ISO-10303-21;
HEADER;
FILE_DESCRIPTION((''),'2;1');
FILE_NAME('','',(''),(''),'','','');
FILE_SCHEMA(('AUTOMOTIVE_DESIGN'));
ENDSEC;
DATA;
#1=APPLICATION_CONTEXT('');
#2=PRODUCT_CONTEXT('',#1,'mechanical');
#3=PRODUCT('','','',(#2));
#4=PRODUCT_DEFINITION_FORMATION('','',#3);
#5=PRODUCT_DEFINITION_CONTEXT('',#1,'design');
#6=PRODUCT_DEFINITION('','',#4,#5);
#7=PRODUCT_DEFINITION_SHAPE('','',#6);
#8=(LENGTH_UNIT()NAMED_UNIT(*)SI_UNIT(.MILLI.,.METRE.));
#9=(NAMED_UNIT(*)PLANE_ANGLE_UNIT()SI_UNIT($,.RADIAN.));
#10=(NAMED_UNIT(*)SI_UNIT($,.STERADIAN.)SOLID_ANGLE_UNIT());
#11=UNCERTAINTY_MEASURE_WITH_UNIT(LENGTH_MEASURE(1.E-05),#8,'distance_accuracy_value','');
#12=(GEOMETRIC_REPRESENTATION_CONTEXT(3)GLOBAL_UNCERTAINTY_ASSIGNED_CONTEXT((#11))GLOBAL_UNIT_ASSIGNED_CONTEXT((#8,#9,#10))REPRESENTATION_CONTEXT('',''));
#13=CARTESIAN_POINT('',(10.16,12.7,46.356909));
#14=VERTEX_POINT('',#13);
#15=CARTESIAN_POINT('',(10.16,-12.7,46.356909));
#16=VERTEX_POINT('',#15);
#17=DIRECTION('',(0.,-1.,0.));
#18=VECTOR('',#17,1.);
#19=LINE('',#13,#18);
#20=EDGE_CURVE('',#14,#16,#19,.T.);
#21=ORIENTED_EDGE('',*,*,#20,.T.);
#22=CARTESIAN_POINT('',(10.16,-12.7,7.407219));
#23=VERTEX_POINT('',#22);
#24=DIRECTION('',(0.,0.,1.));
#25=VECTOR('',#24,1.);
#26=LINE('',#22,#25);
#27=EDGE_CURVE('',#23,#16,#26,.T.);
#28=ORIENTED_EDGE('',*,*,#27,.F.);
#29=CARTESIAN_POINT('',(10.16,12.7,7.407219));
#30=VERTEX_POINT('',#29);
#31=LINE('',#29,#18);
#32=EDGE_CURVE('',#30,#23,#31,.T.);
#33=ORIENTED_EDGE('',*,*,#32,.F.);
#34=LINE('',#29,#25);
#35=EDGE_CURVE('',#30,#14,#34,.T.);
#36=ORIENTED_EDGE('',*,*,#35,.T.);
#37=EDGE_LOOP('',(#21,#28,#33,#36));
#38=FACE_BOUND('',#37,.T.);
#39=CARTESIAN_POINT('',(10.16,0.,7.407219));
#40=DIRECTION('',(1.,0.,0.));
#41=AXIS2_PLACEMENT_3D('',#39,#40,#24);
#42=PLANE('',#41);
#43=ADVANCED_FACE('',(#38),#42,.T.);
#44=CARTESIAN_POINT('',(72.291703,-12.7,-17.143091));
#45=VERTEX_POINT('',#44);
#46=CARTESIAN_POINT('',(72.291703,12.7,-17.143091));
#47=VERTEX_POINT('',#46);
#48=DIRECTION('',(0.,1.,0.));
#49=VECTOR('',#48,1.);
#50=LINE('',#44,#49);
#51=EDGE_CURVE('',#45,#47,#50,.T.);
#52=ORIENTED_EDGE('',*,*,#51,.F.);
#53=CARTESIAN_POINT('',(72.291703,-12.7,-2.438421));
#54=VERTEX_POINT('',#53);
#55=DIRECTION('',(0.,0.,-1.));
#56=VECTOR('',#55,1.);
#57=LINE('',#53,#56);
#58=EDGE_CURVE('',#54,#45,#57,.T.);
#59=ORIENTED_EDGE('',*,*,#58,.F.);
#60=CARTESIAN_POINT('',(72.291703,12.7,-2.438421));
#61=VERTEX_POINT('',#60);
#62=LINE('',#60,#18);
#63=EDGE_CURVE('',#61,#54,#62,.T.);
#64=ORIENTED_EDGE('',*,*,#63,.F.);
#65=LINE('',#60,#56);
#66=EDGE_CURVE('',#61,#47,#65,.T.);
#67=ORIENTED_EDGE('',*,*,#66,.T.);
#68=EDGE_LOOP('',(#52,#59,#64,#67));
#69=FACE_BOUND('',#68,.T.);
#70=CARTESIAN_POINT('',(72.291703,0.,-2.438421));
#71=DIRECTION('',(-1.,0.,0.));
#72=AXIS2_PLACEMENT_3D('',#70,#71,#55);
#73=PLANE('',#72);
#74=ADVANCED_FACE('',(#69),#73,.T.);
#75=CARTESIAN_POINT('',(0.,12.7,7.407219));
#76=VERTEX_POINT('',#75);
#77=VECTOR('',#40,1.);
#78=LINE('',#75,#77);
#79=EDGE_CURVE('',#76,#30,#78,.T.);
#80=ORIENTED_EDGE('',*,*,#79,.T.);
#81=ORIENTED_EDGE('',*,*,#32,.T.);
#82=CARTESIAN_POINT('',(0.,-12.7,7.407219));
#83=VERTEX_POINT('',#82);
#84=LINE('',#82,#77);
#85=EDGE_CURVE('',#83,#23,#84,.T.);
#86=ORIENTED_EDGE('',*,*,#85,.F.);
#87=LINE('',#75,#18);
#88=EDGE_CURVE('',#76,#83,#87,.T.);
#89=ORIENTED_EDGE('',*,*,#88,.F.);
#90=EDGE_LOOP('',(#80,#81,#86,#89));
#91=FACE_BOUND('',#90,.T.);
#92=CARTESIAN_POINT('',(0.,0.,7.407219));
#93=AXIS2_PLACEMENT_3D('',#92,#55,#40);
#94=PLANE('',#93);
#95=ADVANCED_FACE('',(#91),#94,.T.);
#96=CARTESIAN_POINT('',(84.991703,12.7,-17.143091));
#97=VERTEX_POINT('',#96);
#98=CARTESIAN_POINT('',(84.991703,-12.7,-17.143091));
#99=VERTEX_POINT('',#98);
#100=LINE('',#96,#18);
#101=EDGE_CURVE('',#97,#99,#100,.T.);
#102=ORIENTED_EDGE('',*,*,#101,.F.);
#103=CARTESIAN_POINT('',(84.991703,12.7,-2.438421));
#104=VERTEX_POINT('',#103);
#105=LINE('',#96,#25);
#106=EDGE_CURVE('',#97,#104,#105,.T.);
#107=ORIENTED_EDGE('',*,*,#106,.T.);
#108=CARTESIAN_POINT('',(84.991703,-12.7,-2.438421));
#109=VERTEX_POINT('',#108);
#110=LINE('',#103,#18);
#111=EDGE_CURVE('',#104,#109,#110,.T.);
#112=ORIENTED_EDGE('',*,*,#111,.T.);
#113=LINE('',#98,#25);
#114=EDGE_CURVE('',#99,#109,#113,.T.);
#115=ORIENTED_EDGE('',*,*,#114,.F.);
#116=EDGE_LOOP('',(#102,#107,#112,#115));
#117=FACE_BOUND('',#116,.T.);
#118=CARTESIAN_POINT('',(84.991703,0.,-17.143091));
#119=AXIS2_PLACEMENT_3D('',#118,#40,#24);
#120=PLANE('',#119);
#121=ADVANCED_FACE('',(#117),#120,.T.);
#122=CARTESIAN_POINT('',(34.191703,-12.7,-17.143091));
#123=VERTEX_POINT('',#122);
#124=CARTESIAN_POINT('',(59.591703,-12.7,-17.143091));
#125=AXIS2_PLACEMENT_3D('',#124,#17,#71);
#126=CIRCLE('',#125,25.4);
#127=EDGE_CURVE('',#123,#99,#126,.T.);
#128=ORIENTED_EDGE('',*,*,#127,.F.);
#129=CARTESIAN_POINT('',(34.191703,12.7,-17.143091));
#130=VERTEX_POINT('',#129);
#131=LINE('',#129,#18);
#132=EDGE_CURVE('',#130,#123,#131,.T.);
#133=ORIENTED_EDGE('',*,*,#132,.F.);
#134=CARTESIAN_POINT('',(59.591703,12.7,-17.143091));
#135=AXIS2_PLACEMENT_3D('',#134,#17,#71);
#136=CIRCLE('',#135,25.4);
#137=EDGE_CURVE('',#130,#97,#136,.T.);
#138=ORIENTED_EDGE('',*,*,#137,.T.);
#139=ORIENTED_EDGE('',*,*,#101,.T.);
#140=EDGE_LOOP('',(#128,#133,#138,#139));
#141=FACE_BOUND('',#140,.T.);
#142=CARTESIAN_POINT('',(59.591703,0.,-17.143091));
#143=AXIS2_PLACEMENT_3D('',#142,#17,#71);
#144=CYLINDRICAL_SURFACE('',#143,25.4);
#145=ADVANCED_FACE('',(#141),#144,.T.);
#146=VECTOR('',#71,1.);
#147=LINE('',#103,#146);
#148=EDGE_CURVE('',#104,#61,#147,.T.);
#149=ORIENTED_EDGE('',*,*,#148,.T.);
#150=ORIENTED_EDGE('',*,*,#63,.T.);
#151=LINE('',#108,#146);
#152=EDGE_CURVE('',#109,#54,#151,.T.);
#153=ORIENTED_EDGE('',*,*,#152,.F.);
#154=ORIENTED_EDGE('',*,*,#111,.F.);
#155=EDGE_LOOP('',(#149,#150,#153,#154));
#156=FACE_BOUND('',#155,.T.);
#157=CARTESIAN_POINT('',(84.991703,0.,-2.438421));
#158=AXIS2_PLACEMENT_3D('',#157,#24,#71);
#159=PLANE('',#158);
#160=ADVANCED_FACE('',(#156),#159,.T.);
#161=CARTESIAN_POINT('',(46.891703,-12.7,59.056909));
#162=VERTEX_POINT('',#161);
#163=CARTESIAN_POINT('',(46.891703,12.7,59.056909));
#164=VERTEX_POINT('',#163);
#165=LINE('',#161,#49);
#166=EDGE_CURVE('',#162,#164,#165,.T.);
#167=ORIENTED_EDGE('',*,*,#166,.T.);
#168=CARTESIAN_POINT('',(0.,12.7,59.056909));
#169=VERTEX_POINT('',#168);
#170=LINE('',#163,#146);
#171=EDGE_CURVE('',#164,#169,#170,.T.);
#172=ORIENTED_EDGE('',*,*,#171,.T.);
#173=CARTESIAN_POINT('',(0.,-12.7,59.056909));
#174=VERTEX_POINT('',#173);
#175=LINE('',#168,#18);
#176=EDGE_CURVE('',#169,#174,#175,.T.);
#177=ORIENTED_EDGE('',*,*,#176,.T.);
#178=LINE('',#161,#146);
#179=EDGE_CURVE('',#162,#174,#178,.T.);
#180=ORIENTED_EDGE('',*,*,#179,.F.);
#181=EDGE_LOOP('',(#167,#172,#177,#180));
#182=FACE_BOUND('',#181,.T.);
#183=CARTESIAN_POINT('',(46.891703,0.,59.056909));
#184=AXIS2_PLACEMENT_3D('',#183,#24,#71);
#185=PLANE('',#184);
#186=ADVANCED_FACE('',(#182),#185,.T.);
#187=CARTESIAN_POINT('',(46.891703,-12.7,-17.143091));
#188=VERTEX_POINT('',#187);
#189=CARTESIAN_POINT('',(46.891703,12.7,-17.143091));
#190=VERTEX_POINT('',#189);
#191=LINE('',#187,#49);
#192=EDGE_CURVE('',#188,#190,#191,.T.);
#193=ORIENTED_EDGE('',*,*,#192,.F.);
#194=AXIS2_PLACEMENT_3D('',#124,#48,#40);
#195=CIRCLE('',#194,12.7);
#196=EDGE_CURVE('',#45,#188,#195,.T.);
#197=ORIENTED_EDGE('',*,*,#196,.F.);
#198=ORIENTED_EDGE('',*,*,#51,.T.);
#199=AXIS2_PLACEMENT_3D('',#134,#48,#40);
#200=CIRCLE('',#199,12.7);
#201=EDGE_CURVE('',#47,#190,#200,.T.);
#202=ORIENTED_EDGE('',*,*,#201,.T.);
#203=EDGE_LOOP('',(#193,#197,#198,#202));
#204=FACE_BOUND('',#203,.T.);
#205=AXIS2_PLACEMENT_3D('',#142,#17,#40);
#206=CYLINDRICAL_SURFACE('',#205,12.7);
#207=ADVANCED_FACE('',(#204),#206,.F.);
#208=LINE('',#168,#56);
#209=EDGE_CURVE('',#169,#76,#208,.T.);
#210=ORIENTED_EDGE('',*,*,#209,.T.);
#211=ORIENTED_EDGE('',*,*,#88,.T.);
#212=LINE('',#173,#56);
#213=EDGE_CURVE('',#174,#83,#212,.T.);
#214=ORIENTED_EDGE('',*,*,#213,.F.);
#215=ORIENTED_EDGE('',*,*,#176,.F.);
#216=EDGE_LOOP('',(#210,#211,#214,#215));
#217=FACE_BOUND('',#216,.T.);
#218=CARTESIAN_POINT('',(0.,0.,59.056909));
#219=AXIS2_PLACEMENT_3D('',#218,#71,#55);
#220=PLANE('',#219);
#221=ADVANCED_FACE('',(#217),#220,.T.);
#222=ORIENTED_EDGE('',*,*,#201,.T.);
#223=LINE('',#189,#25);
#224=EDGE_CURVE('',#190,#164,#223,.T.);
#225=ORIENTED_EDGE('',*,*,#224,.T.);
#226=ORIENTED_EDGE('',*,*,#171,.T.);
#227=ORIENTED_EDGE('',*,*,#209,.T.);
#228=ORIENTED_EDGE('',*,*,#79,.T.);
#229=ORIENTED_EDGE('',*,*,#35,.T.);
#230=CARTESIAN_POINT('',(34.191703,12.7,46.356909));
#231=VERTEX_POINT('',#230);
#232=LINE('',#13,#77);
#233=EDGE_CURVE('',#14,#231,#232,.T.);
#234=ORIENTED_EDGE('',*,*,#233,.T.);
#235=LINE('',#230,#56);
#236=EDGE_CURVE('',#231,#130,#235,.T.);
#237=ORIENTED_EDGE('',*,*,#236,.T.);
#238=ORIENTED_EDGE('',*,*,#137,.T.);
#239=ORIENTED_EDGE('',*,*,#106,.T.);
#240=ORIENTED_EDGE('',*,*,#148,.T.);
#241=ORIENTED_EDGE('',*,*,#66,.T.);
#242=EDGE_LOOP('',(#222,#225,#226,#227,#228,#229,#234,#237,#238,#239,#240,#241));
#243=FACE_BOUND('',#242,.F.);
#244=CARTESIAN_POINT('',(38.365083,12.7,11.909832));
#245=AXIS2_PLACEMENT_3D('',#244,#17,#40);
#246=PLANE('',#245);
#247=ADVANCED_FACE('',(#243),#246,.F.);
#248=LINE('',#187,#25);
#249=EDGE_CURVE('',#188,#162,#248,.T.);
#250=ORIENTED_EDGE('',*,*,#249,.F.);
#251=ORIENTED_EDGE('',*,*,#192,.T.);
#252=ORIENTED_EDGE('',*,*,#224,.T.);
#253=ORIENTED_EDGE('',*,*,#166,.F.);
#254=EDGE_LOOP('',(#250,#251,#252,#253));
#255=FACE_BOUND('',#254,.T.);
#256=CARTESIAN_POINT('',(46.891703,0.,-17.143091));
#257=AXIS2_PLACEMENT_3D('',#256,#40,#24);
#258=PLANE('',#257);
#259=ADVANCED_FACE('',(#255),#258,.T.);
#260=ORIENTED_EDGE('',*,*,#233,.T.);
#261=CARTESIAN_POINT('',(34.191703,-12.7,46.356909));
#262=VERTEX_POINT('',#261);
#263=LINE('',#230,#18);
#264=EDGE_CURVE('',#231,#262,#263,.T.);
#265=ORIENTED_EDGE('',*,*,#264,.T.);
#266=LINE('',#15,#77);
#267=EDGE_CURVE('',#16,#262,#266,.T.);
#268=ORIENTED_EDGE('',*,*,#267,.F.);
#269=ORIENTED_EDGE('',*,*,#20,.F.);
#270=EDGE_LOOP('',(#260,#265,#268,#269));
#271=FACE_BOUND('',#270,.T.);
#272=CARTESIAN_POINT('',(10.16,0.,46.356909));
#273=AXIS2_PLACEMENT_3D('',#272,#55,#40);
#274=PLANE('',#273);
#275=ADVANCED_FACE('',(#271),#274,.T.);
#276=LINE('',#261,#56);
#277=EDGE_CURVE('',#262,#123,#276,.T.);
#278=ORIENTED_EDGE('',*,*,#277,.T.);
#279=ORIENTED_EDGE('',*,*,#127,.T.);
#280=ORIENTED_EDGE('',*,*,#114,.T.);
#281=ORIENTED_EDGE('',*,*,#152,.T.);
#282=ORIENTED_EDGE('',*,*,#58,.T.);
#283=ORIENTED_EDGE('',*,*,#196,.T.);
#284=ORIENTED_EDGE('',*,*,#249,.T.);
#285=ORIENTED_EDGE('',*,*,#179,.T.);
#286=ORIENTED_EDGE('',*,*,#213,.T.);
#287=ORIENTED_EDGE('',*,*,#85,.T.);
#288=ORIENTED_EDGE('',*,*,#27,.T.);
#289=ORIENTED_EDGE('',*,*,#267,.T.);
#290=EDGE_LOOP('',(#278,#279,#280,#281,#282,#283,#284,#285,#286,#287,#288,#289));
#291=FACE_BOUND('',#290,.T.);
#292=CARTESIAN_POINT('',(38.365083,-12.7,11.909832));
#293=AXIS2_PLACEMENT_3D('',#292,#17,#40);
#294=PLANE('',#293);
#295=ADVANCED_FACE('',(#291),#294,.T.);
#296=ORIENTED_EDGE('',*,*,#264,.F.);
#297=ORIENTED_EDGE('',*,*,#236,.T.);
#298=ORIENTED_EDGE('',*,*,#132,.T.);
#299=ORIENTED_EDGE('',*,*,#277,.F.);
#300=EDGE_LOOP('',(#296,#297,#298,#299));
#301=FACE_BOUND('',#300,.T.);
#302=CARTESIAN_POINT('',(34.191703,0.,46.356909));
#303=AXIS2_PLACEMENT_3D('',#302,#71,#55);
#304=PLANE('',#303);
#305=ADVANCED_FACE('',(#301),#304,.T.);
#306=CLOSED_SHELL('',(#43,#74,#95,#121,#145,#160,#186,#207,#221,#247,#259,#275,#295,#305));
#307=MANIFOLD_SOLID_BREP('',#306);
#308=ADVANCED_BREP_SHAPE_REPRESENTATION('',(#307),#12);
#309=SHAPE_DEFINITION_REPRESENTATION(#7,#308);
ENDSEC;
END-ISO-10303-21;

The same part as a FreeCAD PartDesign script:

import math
import FreeCAD as App
import Part
import Sketcher

V = App.Vector
Q = App.Units.Quantity

doc = App.newDocument("Part")
body = doc.addObject("PartDesign::Body", "Body")

sketch1 = body.newObject("Sketcher::SketchObject", "Sketch")
sketch1.AttachmentSupport = (doc.getObject("XZ_Plane"), [""])
sketch1.MapMode = "FlatFace"
sketch1.addGeometry([
    Part.LineSegment(V(47, 59, 0), V(0, 59, 0)),
    Part.LineSegment(V(0, 59, 0), V(0, 7, 0)),
    Part.LineSegment(V(0, 7, 0), V(10, 7, 0)),
    Part.LineSegment(V(10, 7, 0), V(10, 46, 0)),
    Part.LineSegment(V(10, 46, 0), V(34, 46, 0)),
    Part.LineSegment(V(34, 46, 0), V(34, -17, 0)),
    Part.ArcOfCircle(Part.Circle(V(60, -17, 0), V(0, 0, 1), 25), math.radians(180), math.radians(360)),
    Part.LineSegment(V(85, -17, 0), V(85, -2, 0)),
    Part.LineSegment(V(85, -2, 0), V(72, -2, 0)),
    Part.LineSegment(V(72, -2, 0), V(72, -17, 0)),
    Part.ArcOfCircle(Part.Circle(V(60, -17, 0), V(0, 0, 1), 13), math.radians(180), math.radians(360)),
    Part.LineSegment(V(47, -17, 0), V(47, 59, 0)),
], False)
sketch1.addConstraint([
    Sketcher.Constraint("Coincident", 0, 2, 1, 1),
    Sketcher.Constraint("Coincident", 1, 2, 2, 1),
    Sketcher.Constraint("Coincident", 2, 2, 3, 1),
    Sketcher.Constraint("Coincident", 3, 2, 4, 1),
    Sketcher.Constraint("Coincident", 4, 2, 5, 1),
    Sketcher.Constraint("Tangent", 5, 2, 6, 1),
    Sketcher.Constraint("Tangent", 6, 2, 7, 1),
    Sketcher.Constraint("Coincident", 7, 2, 8, 1),
    Sketcher.Constraint("Coincident", 8, 2, 9, 1),
    Sketcher.Constraint("Tangent", 9, 2, 10, 2),
    Sketcher.Constraint("Tangent", 10, 1, 11, 1),
    Sketcher.Constraint("Coincident", 11, 2, 0, 1),
    Sketcher.Constraint("Horizontal", 0),
    Sketcher.Constraint("Vertical", 1),
    Sketcher.Constraint("Horizontal", 2),
    Sketcher.Constraint("Vertical", 3),
    Sketcher.Constraint("Horizontal", 4),
    Sketcher.Constraint("Vertical", 5),
    Sketcher.Constraint("Vertical", 7),
    Sketcher.Constraint("Horizontal", 8),
    Sketcher.Constraint("Vertical", 9),
    Sketcher.Constraint("Vertical", 11),
    Sketcher.Constraint("Coincident", 10, 3, 6, 3),
    Sketcher.Constraint("PointOnObject", 0, 2, -2),
    Sketcher.Constraint("Radius", 6, Q("1 in")),
    Sketcher.Constraint("Radius", 10, Q("0.5 in")),
    Sketcher.Constraint("DistanceY", 11, 1, 11, 2, Q("3 in")),
    Sketcher.Constraint("DistanceX", 2, 1, 2, 2, Q("0.4 in")),
    Sketcher.Constraint("DistanceY", 5, 2, 5, 1, Q("2.5 in")),
    Sketcher.Constraint("DistanceY", 1, 2, 1, 1, 51.64969),
    Sketcher.Constraint("DistanceY", 7, 1, 7, 2, 14.70467),
    Sketcher.Constraint("DistanceX", 0, 2, 0, 1, 46.891703),
    Sketcher.Constraint("DistanceY", 6, 3, -1, 1, 17.143091),
])
pad1 = body.newObject("PartDesign::Pad", "Pad")
pad1.Profile = sketch1
pad1.Length = Q("1 in")
pad1.Midplane = True

doc.recompute()
